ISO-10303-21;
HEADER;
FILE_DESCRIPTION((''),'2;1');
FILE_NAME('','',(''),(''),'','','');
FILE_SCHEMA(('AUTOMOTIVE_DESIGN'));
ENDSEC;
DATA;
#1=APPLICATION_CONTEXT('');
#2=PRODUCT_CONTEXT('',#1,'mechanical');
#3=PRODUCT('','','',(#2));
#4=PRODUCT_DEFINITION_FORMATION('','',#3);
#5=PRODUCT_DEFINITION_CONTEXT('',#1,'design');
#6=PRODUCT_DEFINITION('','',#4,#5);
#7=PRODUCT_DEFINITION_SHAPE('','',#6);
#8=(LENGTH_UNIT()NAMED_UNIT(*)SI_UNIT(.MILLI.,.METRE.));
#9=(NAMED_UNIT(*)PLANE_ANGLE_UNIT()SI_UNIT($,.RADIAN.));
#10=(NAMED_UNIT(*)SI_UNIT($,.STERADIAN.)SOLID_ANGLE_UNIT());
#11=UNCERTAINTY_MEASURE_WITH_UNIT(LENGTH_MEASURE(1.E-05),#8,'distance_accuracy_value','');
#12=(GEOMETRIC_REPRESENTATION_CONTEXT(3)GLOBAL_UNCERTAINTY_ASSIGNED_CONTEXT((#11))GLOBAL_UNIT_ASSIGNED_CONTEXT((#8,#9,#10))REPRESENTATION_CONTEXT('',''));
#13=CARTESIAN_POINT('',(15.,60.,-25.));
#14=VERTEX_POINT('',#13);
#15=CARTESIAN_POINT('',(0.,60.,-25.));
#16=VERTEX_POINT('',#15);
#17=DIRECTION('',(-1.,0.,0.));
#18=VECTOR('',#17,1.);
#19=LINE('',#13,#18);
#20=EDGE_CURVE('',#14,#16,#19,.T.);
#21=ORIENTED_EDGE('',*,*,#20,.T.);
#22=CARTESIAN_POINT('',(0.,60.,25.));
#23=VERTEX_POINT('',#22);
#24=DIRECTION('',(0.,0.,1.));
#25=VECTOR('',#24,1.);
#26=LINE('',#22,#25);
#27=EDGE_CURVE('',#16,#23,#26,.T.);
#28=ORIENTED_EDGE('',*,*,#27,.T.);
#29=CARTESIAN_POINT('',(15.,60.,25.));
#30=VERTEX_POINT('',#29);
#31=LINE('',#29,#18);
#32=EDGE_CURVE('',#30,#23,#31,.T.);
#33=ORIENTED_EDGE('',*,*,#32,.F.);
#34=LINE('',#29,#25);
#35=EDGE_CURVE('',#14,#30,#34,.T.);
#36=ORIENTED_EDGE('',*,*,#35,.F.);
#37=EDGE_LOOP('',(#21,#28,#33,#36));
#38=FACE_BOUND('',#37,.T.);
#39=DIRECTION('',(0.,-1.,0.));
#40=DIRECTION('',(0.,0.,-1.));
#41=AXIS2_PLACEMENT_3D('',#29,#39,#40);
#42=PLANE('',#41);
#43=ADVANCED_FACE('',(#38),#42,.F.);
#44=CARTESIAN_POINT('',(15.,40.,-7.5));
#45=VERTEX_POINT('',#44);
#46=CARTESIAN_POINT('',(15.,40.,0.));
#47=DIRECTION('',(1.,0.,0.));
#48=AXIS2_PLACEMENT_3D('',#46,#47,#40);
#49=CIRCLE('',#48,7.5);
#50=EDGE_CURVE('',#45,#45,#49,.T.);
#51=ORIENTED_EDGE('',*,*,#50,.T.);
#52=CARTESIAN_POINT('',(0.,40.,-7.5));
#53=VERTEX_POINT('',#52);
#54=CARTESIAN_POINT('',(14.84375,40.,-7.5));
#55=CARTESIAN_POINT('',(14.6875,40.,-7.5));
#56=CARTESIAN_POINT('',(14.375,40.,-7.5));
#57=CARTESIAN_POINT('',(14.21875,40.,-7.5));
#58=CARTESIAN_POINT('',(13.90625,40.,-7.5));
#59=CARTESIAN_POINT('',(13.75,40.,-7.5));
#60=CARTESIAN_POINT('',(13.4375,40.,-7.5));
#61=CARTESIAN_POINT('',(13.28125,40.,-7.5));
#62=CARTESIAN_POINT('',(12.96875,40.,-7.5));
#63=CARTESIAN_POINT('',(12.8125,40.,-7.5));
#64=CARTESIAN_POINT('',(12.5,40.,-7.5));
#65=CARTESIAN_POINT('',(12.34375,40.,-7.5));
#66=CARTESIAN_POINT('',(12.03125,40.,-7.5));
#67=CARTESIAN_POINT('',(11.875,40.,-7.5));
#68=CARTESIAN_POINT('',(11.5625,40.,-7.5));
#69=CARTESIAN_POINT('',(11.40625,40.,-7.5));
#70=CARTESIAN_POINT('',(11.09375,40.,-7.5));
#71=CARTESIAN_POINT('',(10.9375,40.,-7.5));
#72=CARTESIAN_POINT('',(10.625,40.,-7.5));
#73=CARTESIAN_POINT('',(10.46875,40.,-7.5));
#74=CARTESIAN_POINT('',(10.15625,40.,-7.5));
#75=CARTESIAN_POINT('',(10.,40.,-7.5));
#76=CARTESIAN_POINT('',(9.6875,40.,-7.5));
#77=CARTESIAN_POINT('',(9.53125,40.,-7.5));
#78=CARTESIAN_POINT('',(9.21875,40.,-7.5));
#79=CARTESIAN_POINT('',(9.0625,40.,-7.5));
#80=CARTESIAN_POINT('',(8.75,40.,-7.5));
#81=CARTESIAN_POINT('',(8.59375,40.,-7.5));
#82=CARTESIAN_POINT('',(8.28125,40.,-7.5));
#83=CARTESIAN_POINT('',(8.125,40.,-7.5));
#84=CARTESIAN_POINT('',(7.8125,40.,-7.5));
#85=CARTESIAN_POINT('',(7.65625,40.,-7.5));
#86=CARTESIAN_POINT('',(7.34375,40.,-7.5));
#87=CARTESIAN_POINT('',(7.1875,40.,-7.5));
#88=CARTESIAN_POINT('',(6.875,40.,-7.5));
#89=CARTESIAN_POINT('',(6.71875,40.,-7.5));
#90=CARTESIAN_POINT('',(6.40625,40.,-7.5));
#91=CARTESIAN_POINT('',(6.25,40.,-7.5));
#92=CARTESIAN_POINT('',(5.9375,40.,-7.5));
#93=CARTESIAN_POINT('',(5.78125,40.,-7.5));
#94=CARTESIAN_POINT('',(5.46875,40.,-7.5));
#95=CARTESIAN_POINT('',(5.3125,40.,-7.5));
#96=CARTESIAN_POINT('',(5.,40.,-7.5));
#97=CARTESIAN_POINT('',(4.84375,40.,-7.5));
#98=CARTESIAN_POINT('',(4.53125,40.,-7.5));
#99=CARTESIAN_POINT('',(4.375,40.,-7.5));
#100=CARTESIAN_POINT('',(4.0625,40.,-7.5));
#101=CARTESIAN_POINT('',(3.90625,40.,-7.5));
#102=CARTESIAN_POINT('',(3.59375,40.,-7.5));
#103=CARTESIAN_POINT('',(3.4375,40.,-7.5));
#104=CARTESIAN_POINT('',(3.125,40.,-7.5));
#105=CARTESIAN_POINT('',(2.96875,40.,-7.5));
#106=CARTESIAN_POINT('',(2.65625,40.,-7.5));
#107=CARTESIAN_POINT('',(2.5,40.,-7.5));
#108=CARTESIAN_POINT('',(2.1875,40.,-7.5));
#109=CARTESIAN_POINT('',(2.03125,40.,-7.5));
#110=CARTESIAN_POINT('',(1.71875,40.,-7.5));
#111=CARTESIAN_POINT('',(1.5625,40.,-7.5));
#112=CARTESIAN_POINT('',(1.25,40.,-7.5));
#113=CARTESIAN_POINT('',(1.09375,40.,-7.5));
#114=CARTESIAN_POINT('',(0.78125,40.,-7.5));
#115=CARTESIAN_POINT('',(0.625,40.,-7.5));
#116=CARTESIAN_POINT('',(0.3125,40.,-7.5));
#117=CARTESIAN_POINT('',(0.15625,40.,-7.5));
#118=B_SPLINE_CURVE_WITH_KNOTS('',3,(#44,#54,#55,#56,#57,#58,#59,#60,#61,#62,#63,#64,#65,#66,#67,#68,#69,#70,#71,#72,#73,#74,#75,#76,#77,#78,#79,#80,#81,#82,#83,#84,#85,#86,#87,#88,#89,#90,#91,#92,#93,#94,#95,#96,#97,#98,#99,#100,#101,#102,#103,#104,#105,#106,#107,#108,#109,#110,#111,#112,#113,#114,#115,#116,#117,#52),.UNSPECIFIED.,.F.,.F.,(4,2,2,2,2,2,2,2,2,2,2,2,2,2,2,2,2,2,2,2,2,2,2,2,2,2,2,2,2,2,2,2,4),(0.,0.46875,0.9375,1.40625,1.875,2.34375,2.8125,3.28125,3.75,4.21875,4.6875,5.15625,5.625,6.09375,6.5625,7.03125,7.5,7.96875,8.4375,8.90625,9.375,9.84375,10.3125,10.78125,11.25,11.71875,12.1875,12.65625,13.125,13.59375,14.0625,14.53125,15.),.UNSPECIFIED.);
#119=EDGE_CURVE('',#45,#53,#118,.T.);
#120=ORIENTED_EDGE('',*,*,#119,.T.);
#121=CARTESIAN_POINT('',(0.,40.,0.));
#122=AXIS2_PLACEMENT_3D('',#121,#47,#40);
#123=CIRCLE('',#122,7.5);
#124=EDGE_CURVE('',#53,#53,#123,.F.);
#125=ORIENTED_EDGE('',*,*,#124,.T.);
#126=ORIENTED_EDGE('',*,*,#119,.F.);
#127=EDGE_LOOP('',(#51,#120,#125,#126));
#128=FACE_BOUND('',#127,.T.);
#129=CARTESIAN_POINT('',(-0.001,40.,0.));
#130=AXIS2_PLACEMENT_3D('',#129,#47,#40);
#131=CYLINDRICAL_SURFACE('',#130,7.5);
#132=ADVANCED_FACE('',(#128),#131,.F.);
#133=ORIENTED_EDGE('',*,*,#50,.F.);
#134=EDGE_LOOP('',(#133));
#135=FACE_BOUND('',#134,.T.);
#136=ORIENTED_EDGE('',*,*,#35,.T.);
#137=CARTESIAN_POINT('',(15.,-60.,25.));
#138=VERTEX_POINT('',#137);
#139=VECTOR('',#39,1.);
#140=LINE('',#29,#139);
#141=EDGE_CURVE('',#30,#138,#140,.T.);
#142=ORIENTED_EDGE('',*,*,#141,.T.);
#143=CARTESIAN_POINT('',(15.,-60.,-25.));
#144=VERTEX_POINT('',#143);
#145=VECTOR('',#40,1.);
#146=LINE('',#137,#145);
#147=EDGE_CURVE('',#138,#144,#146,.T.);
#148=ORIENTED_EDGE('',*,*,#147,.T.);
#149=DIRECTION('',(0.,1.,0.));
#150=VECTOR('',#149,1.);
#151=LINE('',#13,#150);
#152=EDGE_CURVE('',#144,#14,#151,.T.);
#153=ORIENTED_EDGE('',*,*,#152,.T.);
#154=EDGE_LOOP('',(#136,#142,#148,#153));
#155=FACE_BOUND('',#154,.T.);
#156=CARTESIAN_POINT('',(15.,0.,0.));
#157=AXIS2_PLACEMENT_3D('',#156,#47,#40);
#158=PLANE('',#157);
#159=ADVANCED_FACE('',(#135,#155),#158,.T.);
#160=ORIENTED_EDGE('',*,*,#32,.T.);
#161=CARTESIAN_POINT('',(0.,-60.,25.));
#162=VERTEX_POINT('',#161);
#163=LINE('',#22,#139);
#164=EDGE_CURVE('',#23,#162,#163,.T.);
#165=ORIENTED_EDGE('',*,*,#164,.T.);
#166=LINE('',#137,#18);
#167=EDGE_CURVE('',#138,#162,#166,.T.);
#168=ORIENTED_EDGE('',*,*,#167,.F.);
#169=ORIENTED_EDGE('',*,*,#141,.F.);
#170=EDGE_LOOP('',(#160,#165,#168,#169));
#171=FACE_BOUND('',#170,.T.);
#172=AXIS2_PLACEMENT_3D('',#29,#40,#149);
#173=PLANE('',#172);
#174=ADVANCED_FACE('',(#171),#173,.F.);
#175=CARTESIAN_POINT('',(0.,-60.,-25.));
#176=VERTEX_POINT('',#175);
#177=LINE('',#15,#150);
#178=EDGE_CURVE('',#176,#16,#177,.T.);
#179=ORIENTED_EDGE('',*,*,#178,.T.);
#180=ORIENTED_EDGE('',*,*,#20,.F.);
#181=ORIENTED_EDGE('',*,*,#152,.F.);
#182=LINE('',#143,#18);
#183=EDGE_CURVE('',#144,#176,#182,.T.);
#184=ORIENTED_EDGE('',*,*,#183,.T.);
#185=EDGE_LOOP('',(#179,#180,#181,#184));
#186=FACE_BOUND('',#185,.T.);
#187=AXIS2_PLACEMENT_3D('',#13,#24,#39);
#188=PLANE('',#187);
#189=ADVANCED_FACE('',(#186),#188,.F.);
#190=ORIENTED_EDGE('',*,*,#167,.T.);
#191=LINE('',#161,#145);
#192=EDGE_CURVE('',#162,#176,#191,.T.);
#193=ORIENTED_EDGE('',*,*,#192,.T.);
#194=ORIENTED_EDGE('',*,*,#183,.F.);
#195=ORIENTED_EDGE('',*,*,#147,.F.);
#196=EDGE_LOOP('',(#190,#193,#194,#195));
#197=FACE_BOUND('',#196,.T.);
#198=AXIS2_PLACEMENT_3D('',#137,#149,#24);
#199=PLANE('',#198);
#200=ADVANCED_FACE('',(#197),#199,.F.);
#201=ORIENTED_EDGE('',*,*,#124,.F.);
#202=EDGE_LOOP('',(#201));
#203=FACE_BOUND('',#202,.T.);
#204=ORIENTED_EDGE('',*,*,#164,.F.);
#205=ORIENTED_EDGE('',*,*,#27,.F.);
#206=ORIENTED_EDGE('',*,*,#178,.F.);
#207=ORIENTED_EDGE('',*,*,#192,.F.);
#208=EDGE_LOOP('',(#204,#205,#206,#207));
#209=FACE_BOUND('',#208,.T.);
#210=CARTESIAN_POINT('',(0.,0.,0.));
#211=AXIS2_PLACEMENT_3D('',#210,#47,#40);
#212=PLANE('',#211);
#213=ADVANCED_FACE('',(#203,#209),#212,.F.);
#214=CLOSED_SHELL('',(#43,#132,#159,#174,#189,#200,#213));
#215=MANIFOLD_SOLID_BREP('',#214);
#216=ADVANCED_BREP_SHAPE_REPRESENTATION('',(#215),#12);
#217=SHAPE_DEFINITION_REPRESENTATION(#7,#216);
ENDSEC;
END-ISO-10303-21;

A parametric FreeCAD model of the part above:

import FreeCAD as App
import Part
import Sketcher

V = App.Vector
Q = App.Units.Quantity

doc = App.newDocument("Part")
body = doc.addObject("PartDesign::Body", "Body")

sketch1 = doc.addObject("Sketcher::SketchObject", "Sketch")
body.addObject(sketch1)
sketch1.AttachmentSupport = (doc.YZ_Plane, [""])
sketch1.MapMode = "FlatFace"
sketch1.addGeometry(Part.LineSegment(V(60, 25, 0), V(-60, 25, 0)), False)
sketch1.addGeometry(Part.LineSegment(V(-60, 25, 0), V(-60, -25, 0)), False)
sketch1.addGeometry(Part.LineSegment(V(-60, -25, 0), V(60, -25, 0)), False)
sketch1.addGeometry(Part.LineSegment(V(60, -25, 0), V(60, 25, 0)), False)
sketch1.addConstraint(Sketcher.Constraint("Coincident", 0, 2, 1, 1))
sketch1.addConstraint(Sketcher.Constraint("Coincident", 1, 2, 2, 1))
sketch1.addConstraint(Sketcher.Constraint("Coincident", 2, 2, 3, 1))
sketch1.addConstraint(Sketcher.Constraint("Coincident", 3, 2, 0, 1))
sketch1.addConstraint(Sketcher.Constraint("Horizontal", 0))
sketch1.addConstraint(Sketcher.Constraint("Vertical", 1))
sketch1.addConstraint(Sketcher.Constraint("Horizontal", 2))
sketch1.addConstraint(Sketcher.Constraint("Vertical", 3))
sketch1.addConstraint(Sketcher.Constraint("Symmetric", 0, 2, 2, 2, -1, 1))
sketch1.addConstraint(Sketcher.Constraint("DistanceX", 0, 2, 0, 1, Q("120 mm")))
sketch1.addConstraint(Sketcher.Constraint("DistanceY", 1, 2, 1, 1, Q("50 mm")))
pad1 = doc.addObject("PartDesign::Pad", "Pad")
body.addObject(pad1)
pad1.Profile = sketch1
pad1.Length = 15

sketch2 = doc.addObject("Sketcher::SketchObject", "Sketch001")
body.addObject(sketch2)
sketch2.AttachmentSupport = (doc.YZ_Plane, [""])
sketch2.MapMode = "FlatFace"
sketch2.AttachmentOffset = App.Placement(V(0, 0, 15), App.Rotation())
sketch2.addGeometry(Part.Circle(V(40, 0, 0), V(0, 0, 1), 7.5), False)
sketch2.addConstraint(Sketcher.Constraint("PointOnObject", 0, 3, -1))
sketch2.addConstraint(Sketcher.Constraint("Diameter", 0, Q("15 mm")))
sketch2.addConstraint(Sketcher.Constraint("DistanceX", -1, 1, 0, 3, Q("40 mm")))
pocket1 = doc.addObject("PartDesign::Pocket", "Pocket")
body.addObject(pocket1)
pocket1.Profile = sketch2
pocket1.Type = "UpToFirst"

doc.recompute()
